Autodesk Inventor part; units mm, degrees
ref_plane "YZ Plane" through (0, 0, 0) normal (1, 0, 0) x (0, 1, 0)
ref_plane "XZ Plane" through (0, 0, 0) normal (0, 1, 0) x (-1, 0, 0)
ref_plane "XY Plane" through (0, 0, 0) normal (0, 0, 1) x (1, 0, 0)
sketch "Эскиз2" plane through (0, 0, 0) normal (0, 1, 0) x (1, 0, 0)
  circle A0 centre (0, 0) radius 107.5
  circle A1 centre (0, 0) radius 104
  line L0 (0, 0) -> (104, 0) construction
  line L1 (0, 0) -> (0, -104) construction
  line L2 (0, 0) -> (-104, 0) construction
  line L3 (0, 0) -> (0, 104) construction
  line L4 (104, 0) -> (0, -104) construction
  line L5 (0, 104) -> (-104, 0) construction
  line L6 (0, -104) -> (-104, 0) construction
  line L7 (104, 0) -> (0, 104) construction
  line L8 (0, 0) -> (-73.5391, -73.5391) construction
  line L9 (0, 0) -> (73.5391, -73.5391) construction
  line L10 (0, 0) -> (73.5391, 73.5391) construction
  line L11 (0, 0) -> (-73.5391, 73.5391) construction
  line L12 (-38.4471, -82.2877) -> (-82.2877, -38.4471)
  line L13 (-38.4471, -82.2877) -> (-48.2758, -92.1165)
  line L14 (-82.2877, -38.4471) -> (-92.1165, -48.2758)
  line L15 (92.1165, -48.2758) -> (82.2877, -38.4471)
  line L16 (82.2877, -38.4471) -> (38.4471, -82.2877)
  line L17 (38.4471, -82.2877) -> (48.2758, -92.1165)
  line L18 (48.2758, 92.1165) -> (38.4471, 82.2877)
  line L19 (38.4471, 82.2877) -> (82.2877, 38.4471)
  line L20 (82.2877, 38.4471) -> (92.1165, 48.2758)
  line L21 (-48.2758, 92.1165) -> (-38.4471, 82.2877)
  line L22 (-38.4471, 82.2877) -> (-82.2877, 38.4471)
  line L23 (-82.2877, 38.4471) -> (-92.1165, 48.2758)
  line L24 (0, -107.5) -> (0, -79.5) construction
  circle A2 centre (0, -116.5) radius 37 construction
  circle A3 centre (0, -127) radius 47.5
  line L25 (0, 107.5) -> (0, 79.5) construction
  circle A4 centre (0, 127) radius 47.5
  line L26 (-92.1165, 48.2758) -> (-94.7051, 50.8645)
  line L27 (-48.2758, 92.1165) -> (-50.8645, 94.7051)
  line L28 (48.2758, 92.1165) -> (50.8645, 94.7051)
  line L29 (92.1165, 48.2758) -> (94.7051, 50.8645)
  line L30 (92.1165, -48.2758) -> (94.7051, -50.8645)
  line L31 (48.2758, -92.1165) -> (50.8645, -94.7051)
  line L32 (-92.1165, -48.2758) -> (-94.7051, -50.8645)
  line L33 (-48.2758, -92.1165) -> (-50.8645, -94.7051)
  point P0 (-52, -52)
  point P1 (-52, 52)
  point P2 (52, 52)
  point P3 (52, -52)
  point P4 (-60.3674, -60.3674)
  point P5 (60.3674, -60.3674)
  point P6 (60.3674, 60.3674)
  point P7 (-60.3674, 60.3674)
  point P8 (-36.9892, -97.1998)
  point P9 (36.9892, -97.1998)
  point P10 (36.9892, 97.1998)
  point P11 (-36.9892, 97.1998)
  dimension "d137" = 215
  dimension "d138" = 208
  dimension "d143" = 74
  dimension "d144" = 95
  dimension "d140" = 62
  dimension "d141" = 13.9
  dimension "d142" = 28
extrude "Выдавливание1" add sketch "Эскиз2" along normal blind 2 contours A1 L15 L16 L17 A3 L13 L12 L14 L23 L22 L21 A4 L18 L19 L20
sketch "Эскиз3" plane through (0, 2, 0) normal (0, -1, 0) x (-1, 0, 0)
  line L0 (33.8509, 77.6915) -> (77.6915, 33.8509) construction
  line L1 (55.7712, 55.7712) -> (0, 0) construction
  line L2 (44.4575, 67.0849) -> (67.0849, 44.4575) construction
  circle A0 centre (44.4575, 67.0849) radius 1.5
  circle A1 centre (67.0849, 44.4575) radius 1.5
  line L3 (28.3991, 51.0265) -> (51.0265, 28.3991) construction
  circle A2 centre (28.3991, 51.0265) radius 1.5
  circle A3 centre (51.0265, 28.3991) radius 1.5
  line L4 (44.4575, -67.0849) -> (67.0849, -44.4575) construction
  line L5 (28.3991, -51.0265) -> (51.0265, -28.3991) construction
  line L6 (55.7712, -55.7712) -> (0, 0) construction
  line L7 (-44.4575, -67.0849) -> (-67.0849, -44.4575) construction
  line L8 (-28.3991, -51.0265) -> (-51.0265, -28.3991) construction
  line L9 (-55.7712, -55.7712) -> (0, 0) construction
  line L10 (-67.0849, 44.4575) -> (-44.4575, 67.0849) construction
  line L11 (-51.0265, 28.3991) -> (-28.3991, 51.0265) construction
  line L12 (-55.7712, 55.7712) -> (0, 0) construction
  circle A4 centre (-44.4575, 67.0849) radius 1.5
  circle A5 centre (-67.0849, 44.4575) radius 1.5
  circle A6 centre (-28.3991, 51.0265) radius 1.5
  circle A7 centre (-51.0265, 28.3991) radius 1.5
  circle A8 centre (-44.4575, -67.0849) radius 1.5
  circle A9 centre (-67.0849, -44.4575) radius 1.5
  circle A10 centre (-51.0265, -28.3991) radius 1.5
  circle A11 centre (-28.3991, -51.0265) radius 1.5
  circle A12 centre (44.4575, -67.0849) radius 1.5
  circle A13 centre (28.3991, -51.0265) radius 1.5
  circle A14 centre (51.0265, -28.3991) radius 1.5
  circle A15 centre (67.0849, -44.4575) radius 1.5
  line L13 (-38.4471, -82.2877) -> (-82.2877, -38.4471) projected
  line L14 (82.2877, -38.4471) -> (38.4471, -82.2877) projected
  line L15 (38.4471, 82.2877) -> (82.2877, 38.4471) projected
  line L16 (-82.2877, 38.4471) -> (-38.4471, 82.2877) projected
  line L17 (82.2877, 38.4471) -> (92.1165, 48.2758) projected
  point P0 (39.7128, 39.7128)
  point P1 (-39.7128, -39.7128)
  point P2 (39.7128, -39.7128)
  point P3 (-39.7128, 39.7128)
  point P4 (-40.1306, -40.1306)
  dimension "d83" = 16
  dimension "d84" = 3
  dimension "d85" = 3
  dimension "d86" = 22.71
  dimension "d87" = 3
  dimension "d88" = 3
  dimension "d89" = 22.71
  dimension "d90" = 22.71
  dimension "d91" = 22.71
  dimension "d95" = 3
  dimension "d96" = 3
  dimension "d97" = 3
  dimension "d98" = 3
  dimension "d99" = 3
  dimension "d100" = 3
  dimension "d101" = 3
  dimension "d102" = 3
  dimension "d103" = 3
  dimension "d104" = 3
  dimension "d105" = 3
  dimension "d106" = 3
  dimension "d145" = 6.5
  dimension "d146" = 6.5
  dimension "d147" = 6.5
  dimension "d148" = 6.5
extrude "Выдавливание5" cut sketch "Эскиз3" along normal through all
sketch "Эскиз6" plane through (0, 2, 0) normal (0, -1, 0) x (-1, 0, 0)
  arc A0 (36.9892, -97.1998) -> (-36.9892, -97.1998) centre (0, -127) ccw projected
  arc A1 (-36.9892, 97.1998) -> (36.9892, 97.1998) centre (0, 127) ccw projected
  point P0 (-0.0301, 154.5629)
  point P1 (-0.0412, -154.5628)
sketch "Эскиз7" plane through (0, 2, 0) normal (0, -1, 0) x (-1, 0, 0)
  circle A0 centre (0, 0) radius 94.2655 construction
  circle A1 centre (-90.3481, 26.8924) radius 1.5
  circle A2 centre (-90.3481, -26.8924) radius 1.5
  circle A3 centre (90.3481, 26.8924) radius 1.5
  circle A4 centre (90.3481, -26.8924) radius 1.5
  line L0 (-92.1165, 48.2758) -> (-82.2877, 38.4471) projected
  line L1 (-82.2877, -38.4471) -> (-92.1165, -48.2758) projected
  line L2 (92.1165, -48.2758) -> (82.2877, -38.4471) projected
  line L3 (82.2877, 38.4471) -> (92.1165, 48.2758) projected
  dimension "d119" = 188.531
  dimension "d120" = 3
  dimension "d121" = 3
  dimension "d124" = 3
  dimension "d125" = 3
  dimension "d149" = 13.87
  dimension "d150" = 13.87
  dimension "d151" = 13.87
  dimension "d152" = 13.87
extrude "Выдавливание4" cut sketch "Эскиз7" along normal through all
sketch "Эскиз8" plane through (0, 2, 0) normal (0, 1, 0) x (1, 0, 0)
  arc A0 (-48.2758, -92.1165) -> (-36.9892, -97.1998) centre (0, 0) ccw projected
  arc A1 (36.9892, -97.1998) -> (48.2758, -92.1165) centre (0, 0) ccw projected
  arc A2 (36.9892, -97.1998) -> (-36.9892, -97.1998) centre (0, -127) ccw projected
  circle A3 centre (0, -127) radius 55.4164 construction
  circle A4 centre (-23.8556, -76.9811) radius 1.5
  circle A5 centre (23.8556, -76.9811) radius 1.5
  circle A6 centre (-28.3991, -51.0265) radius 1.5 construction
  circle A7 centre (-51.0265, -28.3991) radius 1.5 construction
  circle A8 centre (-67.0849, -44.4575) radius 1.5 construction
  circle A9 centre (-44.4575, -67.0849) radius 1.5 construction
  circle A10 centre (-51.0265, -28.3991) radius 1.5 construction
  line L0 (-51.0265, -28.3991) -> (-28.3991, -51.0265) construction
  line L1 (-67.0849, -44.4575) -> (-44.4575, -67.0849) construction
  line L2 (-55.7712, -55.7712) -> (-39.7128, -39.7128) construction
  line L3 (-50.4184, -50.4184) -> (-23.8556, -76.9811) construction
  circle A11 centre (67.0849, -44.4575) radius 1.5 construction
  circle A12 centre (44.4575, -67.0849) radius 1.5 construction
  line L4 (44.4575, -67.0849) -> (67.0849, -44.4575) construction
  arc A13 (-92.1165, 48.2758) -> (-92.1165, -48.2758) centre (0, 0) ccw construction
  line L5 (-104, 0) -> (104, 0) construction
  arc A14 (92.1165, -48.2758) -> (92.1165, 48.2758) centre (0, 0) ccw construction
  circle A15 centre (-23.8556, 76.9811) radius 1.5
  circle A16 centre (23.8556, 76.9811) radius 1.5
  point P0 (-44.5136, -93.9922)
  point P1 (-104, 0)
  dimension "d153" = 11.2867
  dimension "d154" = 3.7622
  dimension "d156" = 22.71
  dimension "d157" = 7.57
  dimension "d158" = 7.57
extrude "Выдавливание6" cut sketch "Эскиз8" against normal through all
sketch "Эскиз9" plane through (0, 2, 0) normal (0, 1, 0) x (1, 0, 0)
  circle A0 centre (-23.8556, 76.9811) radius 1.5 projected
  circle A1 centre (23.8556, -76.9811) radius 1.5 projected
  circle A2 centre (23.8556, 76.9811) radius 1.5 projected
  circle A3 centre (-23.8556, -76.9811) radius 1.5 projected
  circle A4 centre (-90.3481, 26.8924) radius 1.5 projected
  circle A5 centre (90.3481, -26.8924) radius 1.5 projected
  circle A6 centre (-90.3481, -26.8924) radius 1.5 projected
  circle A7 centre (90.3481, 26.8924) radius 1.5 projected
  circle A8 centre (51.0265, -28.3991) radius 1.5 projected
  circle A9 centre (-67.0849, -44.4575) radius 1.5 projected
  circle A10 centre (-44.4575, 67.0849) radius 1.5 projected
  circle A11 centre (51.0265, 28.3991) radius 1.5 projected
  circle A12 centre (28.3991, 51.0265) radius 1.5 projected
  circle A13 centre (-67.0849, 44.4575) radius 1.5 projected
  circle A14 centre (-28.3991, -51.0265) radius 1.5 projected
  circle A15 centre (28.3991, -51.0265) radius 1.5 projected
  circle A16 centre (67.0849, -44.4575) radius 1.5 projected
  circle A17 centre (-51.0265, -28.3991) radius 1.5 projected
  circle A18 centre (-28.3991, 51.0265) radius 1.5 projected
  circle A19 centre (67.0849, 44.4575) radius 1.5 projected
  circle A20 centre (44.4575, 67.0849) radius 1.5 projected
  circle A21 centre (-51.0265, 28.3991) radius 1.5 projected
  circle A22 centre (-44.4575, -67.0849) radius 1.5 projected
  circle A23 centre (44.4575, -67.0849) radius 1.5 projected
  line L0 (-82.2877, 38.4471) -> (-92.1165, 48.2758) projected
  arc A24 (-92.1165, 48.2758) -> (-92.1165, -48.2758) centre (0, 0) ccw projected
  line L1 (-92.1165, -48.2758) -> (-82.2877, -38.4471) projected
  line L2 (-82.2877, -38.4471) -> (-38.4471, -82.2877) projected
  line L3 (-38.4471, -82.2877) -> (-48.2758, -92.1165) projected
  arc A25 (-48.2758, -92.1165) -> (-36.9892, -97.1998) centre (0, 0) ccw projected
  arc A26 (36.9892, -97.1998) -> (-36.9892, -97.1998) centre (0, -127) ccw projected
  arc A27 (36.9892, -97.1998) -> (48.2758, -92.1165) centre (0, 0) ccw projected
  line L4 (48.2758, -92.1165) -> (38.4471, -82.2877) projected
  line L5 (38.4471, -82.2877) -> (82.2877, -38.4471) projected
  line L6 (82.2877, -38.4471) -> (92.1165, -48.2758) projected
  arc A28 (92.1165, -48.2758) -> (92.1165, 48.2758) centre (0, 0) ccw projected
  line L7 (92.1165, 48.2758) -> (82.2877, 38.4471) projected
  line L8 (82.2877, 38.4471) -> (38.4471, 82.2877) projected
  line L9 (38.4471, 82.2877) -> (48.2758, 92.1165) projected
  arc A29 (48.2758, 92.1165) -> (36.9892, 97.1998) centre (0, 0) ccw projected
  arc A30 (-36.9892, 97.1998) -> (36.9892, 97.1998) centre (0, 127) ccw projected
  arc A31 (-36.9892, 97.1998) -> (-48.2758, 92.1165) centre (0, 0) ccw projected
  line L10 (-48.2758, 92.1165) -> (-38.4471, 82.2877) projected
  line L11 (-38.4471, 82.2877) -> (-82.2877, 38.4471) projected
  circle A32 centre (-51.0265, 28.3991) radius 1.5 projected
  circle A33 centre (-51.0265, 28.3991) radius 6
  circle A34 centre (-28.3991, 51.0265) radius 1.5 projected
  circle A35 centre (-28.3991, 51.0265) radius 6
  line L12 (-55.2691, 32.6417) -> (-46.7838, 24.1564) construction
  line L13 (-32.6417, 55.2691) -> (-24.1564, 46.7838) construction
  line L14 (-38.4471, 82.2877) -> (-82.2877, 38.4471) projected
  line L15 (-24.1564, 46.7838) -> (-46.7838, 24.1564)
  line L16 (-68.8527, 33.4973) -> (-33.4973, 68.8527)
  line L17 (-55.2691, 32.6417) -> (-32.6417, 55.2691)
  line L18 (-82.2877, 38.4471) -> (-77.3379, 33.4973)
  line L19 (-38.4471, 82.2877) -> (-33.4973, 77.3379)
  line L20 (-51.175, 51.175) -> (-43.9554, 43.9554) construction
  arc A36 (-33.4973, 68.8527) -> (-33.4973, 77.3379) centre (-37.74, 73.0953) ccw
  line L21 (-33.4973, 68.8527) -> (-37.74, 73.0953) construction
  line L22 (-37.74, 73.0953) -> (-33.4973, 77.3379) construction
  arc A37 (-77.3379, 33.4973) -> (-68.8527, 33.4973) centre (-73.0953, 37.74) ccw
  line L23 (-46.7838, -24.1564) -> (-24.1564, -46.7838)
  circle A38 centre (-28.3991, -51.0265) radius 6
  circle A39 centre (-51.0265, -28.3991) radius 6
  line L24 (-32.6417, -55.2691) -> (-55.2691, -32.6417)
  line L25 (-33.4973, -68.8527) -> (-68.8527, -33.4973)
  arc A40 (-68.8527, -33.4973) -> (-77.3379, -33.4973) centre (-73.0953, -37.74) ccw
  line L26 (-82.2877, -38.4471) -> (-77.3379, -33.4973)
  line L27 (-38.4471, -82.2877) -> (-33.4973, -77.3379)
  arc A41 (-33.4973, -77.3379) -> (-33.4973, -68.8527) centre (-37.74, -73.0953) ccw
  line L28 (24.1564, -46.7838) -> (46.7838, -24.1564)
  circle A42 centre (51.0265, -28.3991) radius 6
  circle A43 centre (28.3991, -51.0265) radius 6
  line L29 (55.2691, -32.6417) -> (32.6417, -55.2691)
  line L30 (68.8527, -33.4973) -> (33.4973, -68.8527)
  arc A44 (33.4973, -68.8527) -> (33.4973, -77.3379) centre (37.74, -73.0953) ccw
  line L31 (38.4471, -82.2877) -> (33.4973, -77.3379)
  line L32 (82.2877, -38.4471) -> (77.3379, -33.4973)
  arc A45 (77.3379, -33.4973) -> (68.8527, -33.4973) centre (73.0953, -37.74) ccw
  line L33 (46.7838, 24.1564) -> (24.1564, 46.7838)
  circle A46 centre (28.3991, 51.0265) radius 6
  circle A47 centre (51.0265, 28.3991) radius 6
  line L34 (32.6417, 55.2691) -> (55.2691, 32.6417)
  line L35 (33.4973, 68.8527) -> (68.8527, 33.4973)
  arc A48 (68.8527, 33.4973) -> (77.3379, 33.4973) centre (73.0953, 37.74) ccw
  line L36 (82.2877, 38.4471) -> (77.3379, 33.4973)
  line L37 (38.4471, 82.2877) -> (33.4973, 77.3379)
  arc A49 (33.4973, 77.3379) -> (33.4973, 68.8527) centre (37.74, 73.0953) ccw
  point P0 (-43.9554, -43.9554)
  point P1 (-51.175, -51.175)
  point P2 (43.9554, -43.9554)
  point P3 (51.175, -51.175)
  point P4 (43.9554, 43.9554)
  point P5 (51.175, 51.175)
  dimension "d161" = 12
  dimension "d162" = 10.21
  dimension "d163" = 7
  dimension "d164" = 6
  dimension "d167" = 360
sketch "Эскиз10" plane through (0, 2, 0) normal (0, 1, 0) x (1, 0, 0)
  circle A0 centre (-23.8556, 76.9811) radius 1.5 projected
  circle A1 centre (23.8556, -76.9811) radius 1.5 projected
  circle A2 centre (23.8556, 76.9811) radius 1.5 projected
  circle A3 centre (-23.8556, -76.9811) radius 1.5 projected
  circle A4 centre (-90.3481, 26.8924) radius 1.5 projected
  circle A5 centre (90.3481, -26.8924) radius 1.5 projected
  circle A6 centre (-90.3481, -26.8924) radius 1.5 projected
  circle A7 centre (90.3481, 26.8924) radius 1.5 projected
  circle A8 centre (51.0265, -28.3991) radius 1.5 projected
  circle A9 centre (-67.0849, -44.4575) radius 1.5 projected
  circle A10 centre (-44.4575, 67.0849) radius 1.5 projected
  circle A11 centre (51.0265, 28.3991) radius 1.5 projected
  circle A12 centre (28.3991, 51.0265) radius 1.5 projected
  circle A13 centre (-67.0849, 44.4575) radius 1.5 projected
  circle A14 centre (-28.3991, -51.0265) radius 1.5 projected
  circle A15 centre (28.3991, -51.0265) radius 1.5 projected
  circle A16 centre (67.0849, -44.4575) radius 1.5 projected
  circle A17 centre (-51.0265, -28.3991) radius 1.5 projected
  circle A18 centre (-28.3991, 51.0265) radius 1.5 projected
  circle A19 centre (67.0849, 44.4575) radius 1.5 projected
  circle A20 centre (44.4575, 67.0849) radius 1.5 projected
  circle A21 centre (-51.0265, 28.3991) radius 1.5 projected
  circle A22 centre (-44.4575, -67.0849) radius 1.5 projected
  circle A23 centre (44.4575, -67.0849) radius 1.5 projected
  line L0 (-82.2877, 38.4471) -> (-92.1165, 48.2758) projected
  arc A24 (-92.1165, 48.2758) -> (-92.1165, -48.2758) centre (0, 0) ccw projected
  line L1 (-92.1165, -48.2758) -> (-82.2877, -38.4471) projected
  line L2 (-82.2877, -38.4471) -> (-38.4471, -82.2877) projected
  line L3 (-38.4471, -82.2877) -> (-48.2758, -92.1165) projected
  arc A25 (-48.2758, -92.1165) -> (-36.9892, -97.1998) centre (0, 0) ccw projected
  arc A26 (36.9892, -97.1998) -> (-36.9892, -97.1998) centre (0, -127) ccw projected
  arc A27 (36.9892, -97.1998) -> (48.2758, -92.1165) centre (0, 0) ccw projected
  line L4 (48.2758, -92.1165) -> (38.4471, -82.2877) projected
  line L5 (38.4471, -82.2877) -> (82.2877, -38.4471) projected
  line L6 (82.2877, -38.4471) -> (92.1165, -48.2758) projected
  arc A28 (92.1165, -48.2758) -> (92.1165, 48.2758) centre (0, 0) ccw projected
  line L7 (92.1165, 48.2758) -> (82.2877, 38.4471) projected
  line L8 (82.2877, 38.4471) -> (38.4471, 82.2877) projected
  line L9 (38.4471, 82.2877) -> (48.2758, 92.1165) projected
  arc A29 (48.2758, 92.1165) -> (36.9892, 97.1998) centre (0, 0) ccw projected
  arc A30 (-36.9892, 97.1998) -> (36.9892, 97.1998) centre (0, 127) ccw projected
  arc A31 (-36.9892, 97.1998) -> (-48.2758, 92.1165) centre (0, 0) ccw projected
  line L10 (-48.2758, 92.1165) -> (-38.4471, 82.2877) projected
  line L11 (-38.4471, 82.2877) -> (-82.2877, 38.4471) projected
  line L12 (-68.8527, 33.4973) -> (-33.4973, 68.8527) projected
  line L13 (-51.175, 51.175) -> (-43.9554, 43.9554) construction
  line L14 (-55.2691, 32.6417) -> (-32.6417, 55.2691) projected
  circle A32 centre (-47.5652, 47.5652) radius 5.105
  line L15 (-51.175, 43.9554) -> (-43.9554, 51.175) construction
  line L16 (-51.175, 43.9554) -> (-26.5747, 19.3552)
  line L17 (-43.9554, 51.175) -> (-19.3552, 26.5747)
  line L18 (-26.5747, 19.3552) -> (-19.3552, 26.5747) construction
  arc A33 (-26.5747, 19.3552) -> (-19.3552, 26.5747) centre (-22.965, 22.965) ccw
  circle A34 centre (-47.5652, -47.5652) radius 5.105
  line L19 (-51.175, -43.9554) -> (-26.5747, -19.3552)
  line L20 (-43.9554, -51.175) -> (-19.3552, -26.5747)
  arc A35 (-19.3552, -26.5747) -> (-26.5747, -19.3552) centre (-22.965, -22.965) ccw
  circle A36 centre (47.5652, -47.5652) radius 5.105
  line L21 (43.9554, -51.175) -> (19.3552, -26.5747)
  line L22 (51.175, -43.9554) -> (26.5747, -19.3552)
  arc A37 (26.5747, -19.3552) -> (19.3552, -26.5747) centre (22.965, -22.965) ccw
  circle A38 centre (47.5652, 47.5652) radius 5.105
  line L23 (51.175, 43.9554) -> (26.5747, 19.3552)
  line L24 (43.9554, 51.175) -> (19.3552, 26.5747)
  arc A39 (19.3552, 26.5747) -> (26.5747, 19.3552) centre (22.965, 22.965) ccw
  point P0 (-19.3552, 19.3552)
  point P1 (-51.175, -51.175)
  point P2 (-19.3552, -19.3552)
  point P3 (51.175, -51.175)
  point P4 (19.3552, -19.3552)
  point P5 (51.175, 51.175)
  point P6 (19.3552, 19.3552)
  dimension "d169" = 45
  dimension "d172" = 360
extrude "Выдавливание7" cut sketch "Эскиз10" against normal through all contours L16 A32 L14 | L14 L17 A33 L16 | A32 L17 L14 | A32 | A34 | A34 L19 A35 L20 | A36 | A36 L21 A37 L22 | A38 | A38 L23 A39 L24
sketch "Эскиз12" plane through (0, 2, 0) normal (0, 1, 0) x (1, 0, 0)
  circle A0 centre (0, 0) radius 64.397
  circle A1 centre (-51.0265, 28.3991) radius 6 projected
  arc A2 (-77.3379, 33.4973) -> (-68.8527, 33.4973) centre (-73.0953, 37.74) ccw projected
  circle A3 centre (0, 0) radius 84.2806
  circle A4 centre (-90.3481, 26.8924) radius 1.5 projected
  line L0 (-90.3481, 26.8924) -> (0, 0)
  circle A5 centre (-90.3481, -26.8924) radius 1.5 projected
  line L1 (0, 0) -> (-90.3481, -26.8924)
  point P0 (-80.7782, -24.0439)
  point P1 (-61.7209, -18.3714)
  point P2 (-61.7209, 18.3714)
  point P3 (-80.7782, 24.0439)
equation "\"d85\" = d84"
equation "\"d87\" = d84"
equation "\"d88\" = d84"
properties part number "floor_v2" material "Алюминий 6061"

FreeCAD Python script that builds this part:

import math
import FreeCAD as App
import Part
import Sketcher
from FreeCAD import Vector

doc = App.newDocument("Part")
body = doc.addObject("PartDesign::Body", "Body")

# Sketch on XZ plane
sketch1 = body.newObject("Sketcher::SketchObject", "Sketch")
sketch1.AttachmentSupport = (doc.getObject("XZ_Plane"), [""])
sketch1.MapMode = "FlatFace"
sketch1.addGeometry([
    Part.ArcOfCircle(Part.Circle(Vector(0, 0, 0), Vector(0, 0, 1), 104), math.radians(-28), math.radians(28)),  # 0
    Part.LineSegment(Vector(92, -48, 0), Vector(82, -38, 0)),  # 1
    Part.LineSegment(Vector(82, -38, 0), Vector(38, -82, 0)),  # 2
    Part.LineSegment(Vector(38, -82, 0), Vector(48, -92, 0)),  # 3
    Part.ArcOfCircle(Part.Circle(Vector(0, 0, 0), Vector(0, 0, 1), 104), math.radians(-69.17), math.radians(-62.34)),  # 4
    Part.ArcOfCircle(Part.Circle(Vector(0, -127, 0), Vector(0, 0, 1), 48), math.radians(39), math.radians(141)),  # 5
    Part.ArcOfCircle(Part.Circle(Vector(0, 0, 0), Vector(0, 0, 1), 104), math.radians(-117.66), math.radians(-110.83)),  # 6
    Part.LineSegment(Vector(-48, -92, 0), Vector(-38, -82, 0)),  # 7
    Part.LineSegment(Vector(-38, -82, 0), Vector(-82, -38, 0)),  # 8
    Part.LineSegment(Vector(-82, -38, 0), Vector(-92, -48, 0)),  # 9
    Part.ArcOfCircle(Part.Circle(Vector(0, 0, 0), Vector(0, 0, 1), 104), math.radians(152), math.radians(208)),  # 10
    Part.LineSegment(Vector(-92, 48, 0), Vector(-82, 38, 0)),  # 11
    Part.LineSegment(Vector(-82, 38, 0), Vector(-38, 82, 0)),  # 12
    Part.LineSegment(Vector(-38, 82, 0), Vector(-48, 92, 0)),  # 13
    Part.ArcOfCircle(Part.Circle(Vector(0, 0, 0), Vector(0, 0, 1), 104), math.radians(110.83), math.radians(117.66)),  # 14
    Part.ArcOfCircle(Part.Circle(Vector(0, 127, 0), Vector(0, 0, 1), 48), math.radians(-141), math.radians(-39)),  # 15
    Part.ArcOfCircle(Part.Circle(Vector(0, 0, 0), Vector(0, 0, 1), 104), math.radians(62.34), math.radians(69.17)),  # 16
    Part.LineSegment(Vector(48, 92, 0), Vector(38, 82, 0)),  # 17
    Part.LineSegment(Vector(38, 82, 0), Vector(82, 38, 0)),  # 18
    Part.LineSegment(Vector(82, 38, 0), Vector(92, 48, 0)),  # 19
], False)
sketch1.addConstraint([
    Sketcher.Constraint("Coincident", 0, 1, 1, 1),
    Sketcher.Constraint("Coincident", 1, 2, 2, 1),
    Sketcher.Constraint("Coincident", 2, 2, 3, 1),
    Sketcher.Constraint("Coincident", 3, 2, 4, 2),
    Sketcher.Constraint("Coincident", 4, 1, 5, 1),
    Sketcher.Constraint("Coincident", 5, 2, 6, 2),
    Sketcher.Constraint("Coincident", 6, 1, 7, 1),
    Sketcher.Constraint("Coincident", 7, 2, 8, 1),
    Sketcher.Constraint("Coincident", 8, 2, 9, 1),
    Sketcher.Constraint("Coincident", 9, 2, 10, 2),
    Sketcher.Constraint("Coincident", 10, 1, 11, 1),
    Sketcher.Constraint("Coincident", 11, 2, 12, 1),
    Sketcher.Constraint("Coincident", 12, 2, 13, 1),
    Sketcher.Constraint("Coincident", 13, 2, 14, 2),
    Sketcher.Constraint("Coincident", 14, 1, 15, 1),
    Sketcher.Constraint("Coincident", 15, 2, 16, 2),
    Sketcher.Constraint("Coincident", 16, 1, 17, 1),
    Sketcher.Constraint("Coincident", 17, 2, 18, 1),
    Sketcher.Constraint("Coincident", 18, 2, 19, 1),
    Sketcher.Constraint("Coincident", 19, 2, 0, 2),
    Sketcher.Constraint("Coincident", 0, 3, -1, 1),
    Sketcher.Constraint("Coincident", 4, 3, -1, 1),
    Sketcher.Constraint("Coincident", 6, 3, -1, 1),
    Sketcher.Constraint("Coincident", 10, 3, -1, 1),
    Sketcher.Constraint("Coincident", 14, 3, -1, 1),
    Sketcher.Constraint("Coincident", 16, 3, -1, 1),
    Sketcher.Constraint("Equal", 0, 4),
    Sketcher.Constraint("Equal", 4, 6),
    Sketcher.Constraint("Equal", 6, 10),
    Sketcher.Constraint("Equal", 10, 14),
    Sketcher.Constraint("Equal", 5, 15),
    Sketcher.Constraint("Equal", 14, 16),
    Sketcher.Constraint("Symmetric", 5, 3, 15, 3, -1, 1),
    Sketcher.Constraint("Symmetric", 1, 2, 11, 2, -1, 1),
    Sketcher.Constraint("Symmetric", 2, 2, 12, 2, -1, 1),
    Sketcher.Constraint("Symmetric", 7, 2, 17, 2, -1, 1),
    Sketcher.Constraint("Symmetric", 8, 2, 18, 2, -1, 1),
    Sketcher.Constraint("Symmetric", 2, 2, 7, 2, -2),
    Sketcher.Constraint("Symmetric", 1, 2, 8, 2, -2),
    Sketcher.Constraint("PointOnObject", 5, 3, -2),
    Sketcher.Constraint("Perpendicular", 1, 2),
    Sketcher.Constraint("Perpendicular", 2, 3),
    Sketcher.Constraint("Perpendicular", 3, 7),
    Sketcher.Constraint("Perpendicular", 7, 8),
    Sketcher.Constraint("Perpendicular", 8, 9),
    Sketcher.Constraint("Perpendicular", 9, 11),
    Sketcher.Constraint("Perpendicular", 12, 13),
    Sketcher.Constraint("Perpendicular", 13, 17),
    Sketcher.Constraint("Perpendicular", 18, 19),
    Sketcher.Constraint("Equal", 1, 3),
    Sketcher.Constraint("Radius", 0, 104.0),
    Sketcher.Constraint("Radius", 5, 47.5),
    Sketcher.Constraint("Distance", 2, 62.0),
    Sketcher.Constraint("Distance", 1, 13.9),
    Sketcher.Constraint("DistanceY", 5, 3, -1, 1, 127.0),
])
pad1 = body.newObject("PartDesign::Pad", "Pad")
pad1.Profile = sketch1
pad1.Length = 2
pad1.Reversed = True

# Sketch on XZ plane
sketch2 = body.newObject("Sketcher::SketchObject", "Sketch001")
sketch2.AttachmentSupport = (doc.getObject("XZ_Plane"), [""])
sketch2.MapMode = "FlatFace"
sketch2.AttachmentOffset = App.Placement(Vector(0, 0, -2), App.Rotation())
sketch2.addGeometry([
    Part.Circle(Vector(-44.5, -67.1, 0), Vector(0, 0, 1), 1.5),  # 0
    Part.Circle(Vector(-67.1, -44.5, 0), Vector(0, 0, 1), 1.5),  # 1
    Part.Circle(Vector(-28.4, -51, 0), Vector(0, 0, 1), 1.5),  # 2
    Part.Circle(Vector(-51, -28.4, 0), Vector(0, 0, 1), 1.5),  # 3
    Part.Circle(Vector(44.5, -67.1, 0), Vector(0, 0, 1), 1.5),  # 4
    Part.Circle(Vector(67.1, -44.5, 0), Vector(0, 0, 1), 1.5),  # 5
    Part.Circle(Vector(28.4, -51, 0), Vector(0, 0, 1), 1.5),  # 6
    Part.Circle(Vector(51, -28.4, 0), Vector(0, 0, 1), 1.5),  # 7
    Part.Circle(Vector(44.5, 67.1, 0), Vector(0, 0, 1), 1.5),  # 8
    Part.Circle(Vector(67.1, 44.5, 0), Vector(0, 0, 1), 1.5),  # 9
    Part.Circle(Vector(51, 28.4, 0), Vector(0, 0, 1), 1.5),  # 10
    Part.Circle(Vector(28.4, 51, 0), Vector(0, 0, 1), 1.5),  # 11
    Part.Circle(Vector(-44.5, 67.1, 0), Vector(0, 0, 1), 1.5),  # 12
    Part.Circle(Vector(-28.4, 51, 0), Vector(0, 0, 1), 1.5),  # 13
    Part.Circle(Vector(-51, 28.4, 0), Vector(0, 0, 1), 1.5),  # 14
    Part.Circle(Vector(-67.1, 44.5, 0), Vector(0, 0, 1), 1.5),  # 15
], False)
sketch2.addConstraint([
    Sketcher.Constraint("Equal", 0, 1),
    Sketcher.Constraint("Equal", 1, 2),
    Sketcher.Constraint("Equal", 2, 3),
    Sketcher.Constraint("Equal", 3, 4),
    Sketcher.Constraint("Equal", 4, 5),
    Sketcher.Constraint("Equal", 5, 6),
    Sketcher.Constraint("Equal", 6, 7),
    Sketcher.Constraint("Equal", 7, 8),
    Sketcher.Constraint("Equal", 8, 9),
    Sketcher.Constraint("Equal", 9, 10),
    Sketcher.Constraint("Equal", 10, 11),
    Sketcher.Constraint("Equal", 11, 12),
    Sketcher.Constraint("Equal", 12, 13),
    Sketcher.Constraint("Equal", 13, 14),
    Sketcher.Constraint("Equal", 14, 15),
    Sketcher.Constraint("Symmetric", 0, 3, 8, 3, -1, 1),
    Sketcher.Constraint("Symmetric", 1, 3, 9, 3, -1, 1),
    Sketcher.Constraint("Symmetric", 3, 3, 10, 3, -1, 1),
    Sketcher.Constraint("Symmetric", 2, 3, 11, 3, -1, 1),
    Sketcher.Constraint("Symmetric", 4, 3, 12, 3, -1, 1),
    Sketcher.Constraint("Symmetric", 6, 3, 13, 3, -1, 1),
    Sketcher.Constraint("Symmetric", 7, 3, 14, 3, -1, 1),
    Sketcher.Constraint("Symmetric", 5, 3, 15, 3, -1, 1),
    Sketcher.Constraint("Symmetric", 0, 3, 4, 3, -2),
    Sketcher.Constraint("Symmetric", 1, 3, 5, 3, -2),
    Sketcher.Constraint("Symmetric", 2, 3, 6, 3, -2),
    Sketcher.Constraint("Symmetric", 3, 3, 7, 3, -2),
    Sketcher.Constraint("Diameter", 0, 3.0),
    Sketcher.Constraint("DistanceY", 0, 3, -1, 1, 67.085),
    Sketcher.Constraint("DistanceX", 1, 3, -1, 1, 67.085),
    Sketcher.Constraint("DistanceX", 2, 3, -1, 1, 28.399),
    Sketcher.Constraint("DistanceY", 3, 3, -1, 1, 28.399),
    Sketcher.Constraint("DistanceY", 2, 3, 1, 3, 6.569),
    Sketcher.Constraint("DistanceX", 3, 3, 0, 3, 6.569),
    Sketcher.Constraint("DistanceX", 0, 3, 4, 3, 88.915),
    Sketcher.Constraint("DistanceY", 5, 3, 9, 3, 88.915),
])
pocket1 = body.newObject("PartDesign::Pocket", "Pocket")
pocket1.Profile = sketch2
pocket1.Type = "ThroughAll"
pocket1.Reversed = True

# Sketch on XZ plane
sketch3 = body.newObject("Sketcher::SketchObject", "Sketch002")
sketch3.AttachmentSupport = (doc.getObject("XZ_Plane"), [""])
sketch3.MapMode = "FlatFace"
sketch3.AttachmentOffset = App.Placement(Vector(0, 0, -2), App.Rotation())
sketch3.addGeometry([
    Part.Circle(Vector(90.3, -26.9, 0), Vector(0, 0, 1), 1.5),
    Part.Circle(Vector(90.3, 26.9, 0), Vector(0, 0, 1), 1.5),
    Part.Circle(Vector(-90.3, -26.9, 0), Vector(0, 0, 1), 1.5),
    Part.Circle(Vector(-90.3, 26.9, 0), Vector(0, 0, 1), 1.5),
], False)
sketch3.addConstraint([
    Sketcher.Constraint("Equal", 0, 1),
    Sketcher.Constraint("Equal", 1, 2),
    Sketcher.Constraint("Equal", 2, 3),
    Sketcher.Constraint("Symmetric", 1, 3, 2, 3, -1, 1),
    Sketcher.Constraint("Symmetric", 0, 3, 3, 3, -1, 1),
    Sketcher.Constraint("Symmetric", 0, 3, 2, 3, -2),
    Sketcher.Constraint("Diameter", 0, 3.0),
    Sketcher.Constraint("DistanceX", -1, 1, 0, 3, 90.348),
    Sketcher.Constraint("DistanceY", 0, 3, -1, 1, 26.8924),
])
pocket2 = body.newObject("PartDesign::Pocket", "Pocket001")
pocket2.Profile = sketch3
pocket2.Type = "ThroughAll"
pocket2.Reversed = True

# Sketch on XZ plane
sketch4 = body.newObject("Sketcher::SketchObject", "Sketch003")
sketch4.AttachmentSupport = (doc.getObject("XZ_Plane"), [""])
sketch4.MapMode = "FlatFace"
sketch4.AttachmentOffset = App.Placement(Vector(0, 0, -2), App.Rotation())
sketch4.addGeometry([
    Part.Circle(Vector(-23.9, 77, 0), Vector(0, 0, 1), 1.5),
    Part.Circle(Vector(23.9, 77, 0), Vector(0, 0, 1), 1.5),
    Part.Circle(Vector(-23.9, -77, 0), Vector(0, 0, 1), 1.5),
    Part.Circle(Vector(23.9, -77, 0), Vector(0, 0, 1), 1.5),
], False)
sketch4.addConstraint([
    Sketcher.Constraint("Equal", 0, 1),
    Sketcher.Constraint("Equal", 1, 2),
    Sketcher.Constraint("Equal", 2, 3),
    Sketcher.Constraint("Symmetric", 1, 3, 2, 3, -1, 1),
    Sketcher.Constraint("Symmetric", 0, 3, 3, 3, -1, 1),
    Sketcher.Constraint("Symmetric", 0, 3, 1, 3, -2),
    Sketcher.Constraint("Diameter", 0, 3.0),
    Sketcher.Constraint("DistanceY", -1, 1, 0, 3, 76.981),
    Sketcher.Constraint("DistanceX", 0, 3, -1, 1, 23.8556),
])
pocket3 = body.newObject("PartDesign::Pocket", "Pocket002")
pocket3.Profile = sketch4
pocket3.Type = "ThroughAll"
pocket3.Reversed = True

# Sketch on XZ plane
sketch5 = body.newObject("Sketcher::SketchObject", "Sketch004")
sketch5.AttachmentSupport = (doc.getObject("XZ_Plane"), [""])
sketch5.MapMode = "FlatFace"
sketch5.AttachmentOffset = App.Placement(Vector(0, 0, -2), App.Rotation())
sketch5.addGeometry([
    Part.LineSegment(Vector(-51, -44, 0), Vector(-27, -19, 0)),  # 0
    Part.ArcOfCircle(Part.Circle(Vector(-23, -23, 0), Vector(0, 0, 1), 5), math.radians(-45), math.radians(135)),  # 1
    Part.LineSegment(Vector(-19, -27, 0), Vector(-44, -51, 0)),  # 2
    Part.ArcOfCircle(Part.Circle(Vector(-48, -48, 0), Vector(0, 0, 1), 5), math.radians(135), math.radians(315)),  # 3
    Part.ArcOfCircle(Part.Circle(Vector(-48, 48, 0), Vector(0, 0, 1), 5), math.radians(45), math.radians(225)),  # 4
    Part.LineSegment(Vector(-44, 51, 0), Vector(-19, 27, 0)),  # 5
    Part.ArcOfCircle(Part.Circle(Vector(-23, 23, 0), Vector(0, 0, 1), 5), math.radians(-135), math.radians(45)),  # 6
    Part.LineSegment(Vector(-27, 19, 0), Vector(-51, 44, 0)),  # 7
    Part.ArcOfCircle(Part.Circle(Vector(48, 48, 0), Vector(0, 0, 1), 5), math.radians(-45), math.radians(135)),  # 8
    Part.LineSegment(Vector(51, 44, 0), Vector(27, 19, 0)),  # 9
    Part.ArcOfCircle(Part.Circle(Vector(23, 23, 0), Vector(0, 0, 1), 5), math.radians(135), math.radians(315)),  # 10
    Part.LineSegment(Vector(19, 27, 0), Vector(44, 51, 0)),  # 11
    Part.ArcOfCircle(Part.Circle(Vector(48, -48, 0), Vector(0, 0, 1), 5), math.radians(-135), math.radians(45)),  # 12
    Part.LineSegment(Vector(44, -51, 0), Vector(19, -27, 0)),  # 13
    Part.ArcOfCircle(Part.Circle(Vector(23, -23, 0), Vector(0, 0, 1), 5), math.radians(45), math.radians(225)),  # 14
    Part.LineSegment(Vector(27, -19, 0), Vector(51, -44, 0)),  # 15
], False)
sketch5.addConstraint([
    Sketcher.Constraint("Tangent", 0, 2, 1, 2),
    Sketcher.Constraint("Tangent", 1, 1, 2, 1),
    Sketcher.Constraint("Tangent", 2, 2, 3, 2),
    Sketcher.Constraint("Tangent", 3, 1, 0, 1),
    Sketcher.Constraint("Tangent", 4, 1, 5, 1),
    Sketcher.Constraint("Tangent", 5, 2, 6, 2),
    Sketcher.Constraint("Tangent", 6, 1, 7, 1),
    Sketcher.Constraint("Tangent", 7, 2, 4, 2),
    Sketcher.Constraint("Tangent", 8, 1, 9, 1),
    Sketcher.Constraint("Tangent", 9, 2, 10, 2),
    Sketcher.Constraint("Tangent", 10, 1, 11, 1),
    Sketcher.Constraint("Tangent", 11, 2, 8, 2),
    Sketcher.Constraint("Tangent", 12, 1, 13, 1),
    Sketcher.Constraint("Tangent", 13, 2, 14, 2),
    Sketcher.Constraint("Tangent", 14, 1, 15, 1),
    Sketcher.Constraint("Tangent", 15, 2, 12, 2),
    Sketcher.Constraint("Equal", 1, 3),
    Sketcher.Constraint("Equal", 3, 4),
    Sketcher.Constraint("Equal", 4, 6),
    Sketcher.Constraint("Equal", 6, 8),
    Sketcher.Constraint("Equal", 8, 10),
    Sketcher.Constraint("Equal", 10, 12),
    Sketcher.Constraint("Equal", 12, 14),
    Sketcher.Constraint("Symmetric", 3, 3, 8, 3, -1, 1),
    Sketcher.Constraint("Symmetric", 1, 3, 10, 3, -1, 1),
    Sketcher.Constraint("Symmetric", 4, 3, 12, 3, -1, 1),
    Sketcher.Constraint("Symmetric", 6, 3, 14, 3, -1, 1),
    Sketcher.Constraint("Symmetric", 4, 3, 8, 3, -2),
    Sketcher.Constraint("Symmetric", 6, 3, 10, 3, -2),
    Sketcher.Constraint("Perpendicular", 2, 5),
    Sketcher.Constraint("Radius", 1, 5.105),
    Sketcher.Constraint("Distance", 0, 34.79),
    Sketcher.Constraint("DistanceY", 1, 3, 6, 3, 45.93),
    Sketcher.Constraint("DistanceX", 6, 3, 10, 3, 45.93),
])
pocket4 = body.newObject("PartDesign::Pocket", "Pocket003")
pocket4.Profile = sketch5
pocket4.Type = "ThroughAll"
pocket4.Reversed = True

doc.recompute()
